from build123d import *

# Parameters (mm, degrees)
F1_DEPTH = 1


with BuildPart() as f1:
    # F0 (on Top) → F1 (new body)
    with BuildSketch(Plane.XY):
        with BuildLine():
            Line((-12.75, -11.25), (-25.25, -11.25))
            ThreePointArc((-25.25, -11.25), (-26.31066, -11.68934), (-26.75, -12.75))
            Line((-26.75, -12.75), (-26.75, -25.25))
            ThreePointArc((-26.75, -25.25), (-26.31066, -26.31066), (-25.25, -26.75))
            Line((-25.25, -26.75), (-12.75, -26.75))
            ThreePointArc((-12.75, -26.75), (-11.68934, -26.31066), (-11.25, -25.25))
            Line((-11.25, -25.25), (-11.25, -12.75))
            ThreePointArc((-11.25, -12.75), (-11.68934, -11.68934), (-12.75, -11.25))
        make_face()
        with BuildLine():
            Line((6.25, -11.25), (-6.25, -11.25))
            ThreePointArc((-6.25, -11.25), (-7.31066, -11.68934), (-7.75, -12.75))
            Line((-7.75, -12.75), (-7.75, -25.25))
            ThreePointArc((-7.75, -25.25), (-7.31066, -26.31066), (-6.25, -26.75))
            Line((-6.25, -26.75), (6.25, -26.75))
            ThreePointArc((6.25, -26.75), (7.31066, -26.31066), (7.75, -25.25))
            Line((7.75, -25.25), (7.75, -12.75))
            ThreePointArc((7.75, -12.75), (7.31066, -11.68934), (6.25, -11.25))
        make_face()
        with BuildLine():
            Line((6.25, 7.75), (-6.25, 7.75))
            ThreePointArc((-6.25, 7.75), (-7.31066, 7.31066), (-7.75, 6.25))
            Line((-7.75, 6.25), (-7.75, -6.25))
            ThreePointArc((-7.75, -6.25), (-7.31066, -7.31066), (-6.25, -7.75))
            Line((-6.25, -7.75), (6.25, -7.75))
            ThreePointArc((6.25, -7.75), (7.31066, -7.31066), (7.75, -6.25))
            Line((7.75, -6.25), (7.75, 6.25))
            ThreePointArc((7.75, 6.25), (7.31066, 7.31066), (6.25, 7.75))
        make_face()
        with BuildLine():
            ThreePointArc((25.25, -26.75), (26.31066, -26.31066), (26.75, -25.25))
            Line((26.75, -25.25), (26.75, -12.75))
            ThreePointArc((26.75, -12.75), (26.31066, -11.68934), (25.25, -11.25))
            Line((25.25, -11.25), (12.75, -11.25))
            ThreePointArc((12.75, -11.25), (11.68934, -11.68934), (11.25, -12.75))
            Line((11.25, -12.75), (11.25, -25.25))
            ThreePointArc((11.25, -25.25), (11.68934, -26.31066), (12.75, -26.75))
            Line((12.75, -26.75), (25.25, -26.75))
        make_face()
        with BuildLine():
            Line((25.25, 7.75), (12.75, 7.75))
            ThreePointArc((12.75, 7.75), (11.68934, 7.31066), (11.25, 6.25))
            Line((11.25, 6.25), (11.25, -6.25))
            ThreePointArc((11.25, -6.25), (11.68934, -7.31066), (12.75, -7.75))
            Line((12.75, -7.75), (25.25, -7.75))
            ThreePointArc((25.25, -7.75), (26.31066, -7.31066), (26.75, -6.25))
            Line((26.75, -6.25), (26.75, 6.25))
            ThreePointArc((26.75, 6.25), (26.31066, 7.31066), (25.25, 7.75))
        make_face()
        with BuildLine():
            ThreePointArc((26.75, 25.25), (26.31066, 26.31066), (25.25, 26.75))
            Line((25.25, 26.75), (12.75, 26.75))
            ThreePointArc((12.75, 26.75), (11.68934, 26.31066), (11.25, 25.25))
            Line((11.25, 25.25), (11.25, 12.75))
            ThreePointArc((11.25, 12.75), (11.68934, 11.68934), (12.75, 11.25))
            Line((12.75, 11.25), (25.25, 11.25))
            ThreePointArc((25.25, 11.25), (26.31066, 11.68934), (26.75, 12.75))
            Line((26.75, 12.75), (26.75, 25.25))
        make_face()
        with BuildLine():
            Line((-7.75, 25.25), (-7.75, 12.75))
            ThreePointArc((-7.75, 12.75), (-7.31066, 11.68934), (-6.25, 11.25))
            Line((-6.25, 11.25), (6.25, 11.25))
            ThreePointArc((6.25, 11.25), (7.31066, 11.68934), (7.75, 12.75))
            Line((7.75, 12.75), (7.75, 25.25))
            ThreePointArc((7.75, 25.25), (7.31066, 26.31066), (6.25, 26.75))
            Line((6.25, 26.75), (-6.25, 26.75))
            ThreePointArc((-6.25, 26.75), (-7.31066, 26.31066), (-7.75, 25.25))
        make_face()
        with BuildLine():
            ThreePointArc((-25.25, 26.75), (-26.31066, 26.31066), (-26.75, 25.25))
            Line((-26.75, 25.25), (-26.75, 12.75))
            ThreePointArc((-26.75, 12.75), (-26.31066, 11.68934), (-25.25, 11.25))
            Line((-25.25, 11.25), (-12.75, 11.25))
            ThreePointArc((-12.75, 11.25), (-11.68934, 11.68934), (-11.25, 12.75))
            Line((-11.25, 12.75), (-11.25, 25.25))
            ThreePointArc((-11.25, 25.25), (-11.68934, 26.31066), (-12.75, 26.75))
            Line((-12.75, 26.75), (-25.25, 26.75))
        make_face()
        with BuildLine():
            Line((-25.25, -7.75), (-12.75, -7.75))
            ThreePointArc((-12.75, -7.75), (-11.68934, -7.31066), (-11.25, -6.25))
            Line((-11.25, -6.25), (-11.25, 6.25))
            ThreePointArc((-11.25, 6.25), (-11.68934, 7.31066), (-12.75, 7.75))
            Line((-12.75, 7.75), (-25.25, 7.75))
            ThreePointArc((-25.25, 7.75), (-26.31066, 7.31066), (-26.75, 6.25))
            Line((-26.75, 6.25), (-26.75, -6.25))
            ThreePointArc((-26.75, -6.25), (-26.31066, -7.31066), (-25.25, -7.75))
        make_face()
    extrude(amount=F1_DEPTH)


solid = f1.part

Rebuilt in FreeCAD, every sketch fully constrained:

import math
import FreeCAD as App
import Part
import Sketcher

doc = App.newDocument("Part")
body = doc.addObject("PartDesign::Body", "Body")
body.AllowCompound = True

sketch1 = body.newObject("Sketcher::SketchObject", "Sketch")
sketch1.AttachmentSupport = (doc.getObject("XY_Plane"), [""])
sketch1.MapMode = "FlatFace"
sketch1.addGeometry(Part.LineSegment(App.Vector(-12.8, -11.2, 0), App.Vector(-25.2, -11.2, 0)), False)
sketch1.addGeometry(Part.ArcOfCircle(Part.Circle(App.Vector(-25.2, -12.8, 0), App.Vector(0, 0, 1), 1.5), math.radians(90), math.radians(180)), False)
sketch1.addGeometry(Part.LineSegment(App.Vector(-26.8, -12.8, 0), App.Vector(-26.8, -25.2, 0)), False)
sketch1.addGeometry(Part.ArcOfCircle(Part.Circle(App.Vector(-25.2, -25.2, 0), App.Vector(0, 0, 1), 1.5), math.radians(-180), math.radians(-90)), False)
sketch1.addGeometry(Part.LineSegment(App.Vector(-25.2, -26.8, 0), App.Vector(-12.8, -26.8, 0)), False)
sketch1.addGeometry(Part.ArcOfCircle(Part.Circle(App.Vector(-12.8, -25.2, 0), App.Vector(0, 0, 1), 1.5), math.radians(-90), math.radians(0)), False)
sketch1.addGeometry(Part.LineSegment(App.Vector(-11.2, -25.2, 0), App.Vector(-11.2, -12.8, 0)), False)
sketch1.addGeometry(Part.ArcOfCircle(Part.Circle(App.Vector(-12.8, -12.8, 0), App.Vector(0, 0, 1), 1.5), math.radians(0), math.radians(90)), False)
sketch1.addGeometry(Part.LineSegment(App.Vector(6.2, -11.2, 0), App.Vector(-6.2, -11.2, 0)), False)
sketch1.addGeometry(Part.ArcOfCircle(Part.Circle(App.Vector(-6.2, -12.8, 0), App.Vector(0, 0, 1), 1.5), math.radians(90), math.radians(180)), False)
sketch1.addGeometry(Part.LineSegment(App.Vector(-7.8, -12.8, 0), App.Vector(-7.8, -25.2, 0)), False)
sketch1.addGeometry(Part.ArcOfCircle(Part.Circle(App.Vector(-6.2, -25.2, 0), App.Vector(0, 0, 1), 1.5), math.radians(-180), math.radians(-90)), False)
sketch1.addGeometry(Part.LineSegment(App.Vector(-6.2, -26.8, 0), App.Vector(6.2, -26.8, 0)), False)
sketch1.addGeometry(Part.ArcOfCircle(Part.Circle(App.Vector(6.2, -25.2, 0), App.Vector(0, 0, 1), 1.5), math.radians(-90), math.radians(0)), False)
sketch1.addGeometry(Part.LineSegment(App.Vector(7.8, -25.2, 0), App.Vector(7.8, -12.8, 0)), False)
sketch1.addGeometry(Part.ArcOfCircle(Part.Circle(App.Vector(6.2, -12.8, 0), App.Vector(0, 0, 1), 1.5), math.radians(0), math.radians(90)), False)
sketch1.addGeometry(Part.LineSegment(App.Vector(6.2, 7.8, 0), App.Vector(-6.2, 7.8, 0)), False)
sketch1.addGeometry(Part.ArcOfCircle(Part.Circle(App.Vector(-6.2, 6.2, 0), App.Vector(0, 0, 1), 1.5), math.radians(90), math.radians(180)), False)
sketch1.addGeometry(Part.LineSegment(App.Vector(-7.8, 6.2, 0), App.Vector(-7.8, -6.2, 0)), False)
sketch1.addGeometry(Part.ArcOfCircle(Part.Circle(App.Vector(-6.2, -6.2, 0), App.Vector(0, 0, 1), 1.5), math.radians(-180), math.radians(-90)), False)
sketch1.addGeometry(Part.LineSegment(App.Vector(-6.2, -7.8, 0), App.Vector(6.2, -7.8, 0)), False)
sketch1.addGeometry(Part.ArcOfCircle(Part.Circle(App.Vector(6.2, -6.2, 0), App.Vector(0, 0, 1), 1.5), math.radians(-90), math.radians(0)), False)
sketch1.addGeometry(Part.LineSegment(App.Vector(7.8, -6.2, 0), App.Vector(7.8, 6.2, 0)), False)
sketch1.addGeometry(Part.ArcOfCircle(Part.Circle(App.Vector(6.2, 6.2, 0), App.Vector(0, 0, 1), 1.5), math.radians(0), math.radians(90)), False)
sketch1.addGeometry(Part.ArcOfCircle(Part.Circle(App.Vector(25.2, -25.2, 0), App.Vector(0, 0, 1), 1.5), math.radians(-90), math.radians(0)), False)
sketch1.addGeometry(Part.LineSegment(App.Vector(26.8, -25.2, 0), App.Vector(26.8, -12.8, 0)), False)
sketch1.addGeometry(Part.ArcOfCircle(Part.Circle(App.Vector(25.2, -12.8, 0), App.Vector(0, 0, 1), 1.5), math.radians(0), math.radians(90)), False)
sketch1.addGeometry(Part.LineSegment(App.Vector(25.2, -11.2, 0), App.Vector(12.8, -11.2, 0)), False)
sketch1.addGeometry(Part.ArcOfCircle(Part.Circle(App.Vector(12.8, -12.8, 0), App.Vector(0, 0, 1), 1.5), math.radians(90), math.radians(180)), False)
sketch1.addGeometry(Part.LineSegment(App.Vector(11.2, -12.8, 0), App.Vector(11.2, -25.2, 0)), False)
sketch1.addGeometry(Part.ArcOfCircle(Part.Circle(App.Vector(12.8, -25.2, 0), App.Vector(0, 0, 1), 1.5), math.radians(-180), math.radians(-90)), False)
sketch1.addGeometry(Part.LineSegment(App.Vector(12.8, -26.8, 0), App.Vector(25.2, -26.8, 0)), False)
sketch1.addGeometry(Part.LineSegment(App.Vector(25.2, 7.8, 0), App.Vector(12.8, 7.8, 0)), False)
sketch1.addGeometry(Part.ArcOfCircle(Part.Circle(App.Vector(12.8, 6.2, 0), App.Vector(0, 0, 1), 1.5), math.radians(90), math.radians(180)), False)
sketch1.addGeometry(Part.LineSegment(App.Vector(11.2, 6.2, 0), App.Vector(11.2, -6.2, 0)), False)
sketch1.addGeometry(Part.ArcOfCircle(Part.Circle(App.Vector(12.8, -6.2, 0), App.Vector(0, 0, 1), 1.5), math.radians(-180), math.radians(-90)), False)
sketch1.addGeometry(Part.LineSegment(App.Vector(12.8, -7.8, 0), App.Vector(25.2, -7.8, 0)), False)
sketch1.addGeometry(Part.ArcOfCircle(Part.Circle(App.Vector(25.2, -6.2, 0), App.Vector(0, 0, 1), 1.5), math.radians(-90), math.radians(0)), False)
sketch1.addGeometry(Part.LineSegment(App.Vector(26.8, -6.2, 0), App.Vector(26.8, 6.2, 0)), False)
sketch1.addGeometry(Part.ArcOfCircle(Part.Circle(App.Vector(25.2, 6.2, 0), App.Vector(0, 0, 1), 1.5), math.radians(0), math.radians(90)), False)
sketch1.addGeometry(Part.ArcOfCircle(Part.Circle(App.Vector(25.2, 25.2, 0), App.Vector(0, 0, 1), 1.5), math.radians(0), math.radians(90)), False)
sketch1.addGeometry(Part.LineSegment(App.Vector(25.2, 26.8, 0), App.Vector(12.8, 26.8, 0)), False)
sketch1.addGeometry(Part.ArcOfCircle(Part.Circle(App.Vector(12.8, 25.2, 0), App.Vector(0, 0, 1), 1.5), math.radians(90), math.radians(180)), False)
sketch1.addGeometry(Part.LineSegment(App.Vector(11.2, 25.2, 0), App.Vector(11.2, 12.8, 0)), False)
sketch1.addGeometry(Part.ArcOfCircle(Part.Circle(App.Vector(12.8, 12.8, 0), App.Vector(0, 0, 1), 1.5), math.radians(-180), math.radians(-90)), False)
sketch1.addGeometry(Part.LineSegment(App.Vector(12.8, 11.2, 0), App.Vector(25.2, 11.2, 0)), False)
sketch1.addGeometry(Part.ArcOfCircle(Part.Circle(App.Vector(25.2, 12.8, 0), App.Vector(0, 0, 1), 1.5), math.radians(-90), math.radians(0)), False)
sketch1.addGeometry(Part.LineSegment(App.Vector(26.8, 12.8, 0), App.Vector(26.8, 25.2, 0)), False)
sketch1.addGeometry(Part.LineSegment(App.Vector(-7.8, 25.2, 0), App.Vector(-7.8, 12.8, 0)), False)
sketch1.addGeometry(Part.ArcOfCircle(Part.Circle(App.Vector(-6.2, 12.8, 0), App.Vector(0, 0, 1), 1.5), math.radians(-180), math.radians(-90)), False)
sketch1.addGeometry(Part.LineSegment(App.Vector(-6.2, 11.2, 0), App.Vector(6.2, 11.2, 0)), False)
sketch1.addGeometry(Part.ArcOfCircle(Part.Circle(App.Vector(6.2, 12.8, 0), App.Vector(0, 0, 1), 1.5), math.radians(-90), math.radians(0)), False)
sketch1.addGeometry(Part.LineSegment(App.Vector(7.8, 12.8, 0), App.Vector(7.8, 25.2, 0)), False)
sketch1.addGeometry(Part.ArcOfCircle(Part.Circle(App.Vector(6.2, 25.2, 0), App.Vector(0, 0, 1), 1.5), math.radians(0), math.radians(90)), False)
sketch1.addGeometry(Part.LineSegment(App.Vector(6.2, 26.8, 0), App.Vector(-6.2, 26.8, 0)), False)
sketch1.addGeometry(Part.ArcOfCircle(Part.Circle(App.Vector(-6.2, 25.2, 0), App.Vector(0, 0, 1), 1.5), math.radians(90), math.radians(180)), False)
sketch1.addGeometry(Part.ArcOfCircle(Part.Circle(App.Vector(-25.2, 25.2, 0), App.Vector(0, 0, 1), 1.5), math.radians(90), math.radians(180)), False)
sketch1.addGeometry(Part.LineSegment(App.Vector(-26.8, 25.2, 0), App.Vector(-26.8, 12.8, 0)), False)
sketch1.addGeometry(Part.ArcOfCircle(Part.Circle(App.Vector(-25.2, 12.8, 0), App.Vector(0, 0, 1), 1.5), math.radians(-180), math.radians(-90)), False)
sketch1.addGeometry(Part.LineSegment(App.Vector(-25.2, 11.2, 0), App.Vector(-12.8, 11.2, 0)), False)
sketch1.addGeometry(Part.ArcOfCircle(Part.Circle(App.Vector(-12.8, 12.8, 0), App.Vector(0, 0, 1), 1.5), math.radians(-90), math.radians(0)), False)
sketch1.addGeometry(Part.LineSegment(App.Vector(-11.2, 12.8, 0), App.Vector(-11.2, 25.2, 0)), False)
sketch1.addGeometry(Part.ArcOfCircle(Part.Circle(App.Vector(-12.8, 25.2, 0), App.Vector(0, 0, 1), 1.5), math.radians(0), math.radians(90)), False)
sketch1.addGeometry(Part.LineSegment(App.Vector(-12.8, 26.8, 0), App.Vector(-25.2, 26.8, 0)), False)
sketch1.addGeometry(Part.LineSegment(App.Vector(-25.2, -7.8, 0), App.Vector(-12.8, -7.8, 0)), False)
sketch1.addGeometry(Part.ArcOfCircle(Part.Circle(App.Vector(-12.8, -6.2, 0), App.Vector(0, 0, 1), 1.5), math.radians(-90), math.radians(0)), False)
sketch1.addGeometry(Part.LineSegment(App.Vector(-11.2, -6.2, 0), App.Vector(-11.2, 6.2, 0)), False)
sketch1.addGeometry(Part.ArcOfCircle(Part.Circle(App.Vector(-12.8, 6.2, 0), App.Vector(0, 0, 1), 1.5), math.radians(0), math.radians(90)), False)
sketch1.addGeometry(Part.LineSegment(App.Vector(-12.8, 7.8, 0), App.Vector(-25.2, 7.8, 0)), False)
sketch1.addGeometry(Part.ArcOfCircle(Part.Circle(App.Vector(-25.2, 6.2, 0), App.Vector(0, 0, 1), 1.5), math.radians(90), math.radians(180)), False)
sketch1.addGeometry(Part.LineSegment(App.Vector(-26.8, 6.2, 0), App.Vector(-26.8, -6.2, 0)), False)
sketch1.addGeometry(Part.ArcOfCircle(Part.Circle(App.Vector(-25.2, -6.2, 0), App.Vector(0, 0, 1), 1.5), math.radians(-180), math.radians(-90)), False)
sketch1.addConstraint(Sketcher.Constraint("Tangent", 0, 2, 1, 1))
sketch1.addConstraint(Sketcher.Constraint("Tangent", 1, 2, 2, 1))
sketch1.addConstraint(Sketcher.Constraint("Tangent", 2, 2, 3, 1))
sketch1.addConstraint(Sketcher.Constraint("Tangent", 3, 2, 4, 1))
sketch1.addConstraint(Sketcher.Constraint("Tangent", 4, 2, 5, 1))
sketch1.addConstraint(Sketcher.Constraint("Tangent", 5, 2, 6, 1))
sketch1.addConstraint(Sketcher.Constraint("Tangent", 6, 2, 7, 1))
sketch1.addConstraint(Sketcher.Constraint("Tangent", 7, 2, 0, 1))
sketch1.addConstraint(Sketcher.Constraint("Tangent", 8, 2, 9, 1))
sketch1.addConstraint(Sketcher.Constraint("Tangent", 9, 2, 10, 1))
sketch1.addConstraint(Sketcher.Constraint("Tangent", 10, 2, 11, 1))
sketch1.addConstraint(Sketcher.Constraint("Tangent", 11, 2, 12, 1))
sketch1.addConstraint(Sketcher.Constraint("Tangent", 12, 2, 13, 1))
sketch1.addConstraint(Sketcher.Constraint("Tangent", 13, 2, 14, 1))
sketch1.addConstraint(Sketcher.Constraint("Tangent", 14, 2, 15, 1))
sketch1.addConstraint(Sketcher.Constraint("Tangent", 15, 2, 8, 1))
sketch1.addConstraint(Sketcher.Constraint("Tangent", 16, 2, 17, 1))
sketch1.addConstraint(Sketcher.Constraint("Tangent", 17, 2, 18, 1))
sketch1.addConstraint(Sketcher.Constraint("Tangent", 18, 2, 19, 1))
sketch1.addConstraint(Sketcher.Constraint("Tangent", 19, 2, 20, 1))
sketch1.addConstraint(Sketcher.Constraint("Tangent", 20, 2, 21, 1))
sketch1.addConstraint(Sketcher.Constraint("Tangent", 21, 2, 22, 1))
sketch1.addConstraint(Sketcher.Constraint("Tangent", 22, 2, 23, 1))
sketch1.addConstraint(Sketcher.Constraint("Tangent", 23, 2, 16, 1))
sketch1.addConstraint(Sketcher.Constraint("Tangent", 24, 2, 25, 1))
sketch1.addConstraint(Sketcher.Constraint("Tangent", 25, 2, 26, 1))
sketch1.addConstraint(Sketcher.Constraint("Tangent", 26, 2, 27, 1))
sketch1.addConstraint(Sketcher.Constraint("Tangent", 27, 2, 28, 1))
sketch1.addConstraint(Sketcher.Constraint("Tangent", 28, 2, 29, 1))
sketch1.addConstraint(Sketcher.Constraint("Tangent", 29, 2, 30, 1))
sketch1.addConstraint(Sketcher.Constraint("Tangent", 30, 2, 31, 1))
sketch1.addConstraint(Sketcher.Constraint("Tangent", 31, 2, 24, 1))
sketch1.addConstraint(Sketcher.Constraint("Tangent", 32, 2, 33, 1))
sketch1.addConstraint(Sketcher.Constraint("Tangent", 33, 2, 34, 1))
sketch1.addConstraint(Sketcher.Constraint("Tangent", 34, 2, 35, 1))
sketch1.addConstraint(Sketcher.Constraint("Tangent", 35, 2, 36, 1))
sketch1.addConstraint(Sketcher.Constraint("Tangent", 36, 2, 37, 1))
sketch1.addConstraint(Sketcher.Constraint("Tangent", 37, 2, 38, 1))
sketch1.addConstraint(Sketcher.Constraint("Tangent", 38, 2, 39, 1))
sketch1.addConstraint(Sketcher.Constraint("Tangent", 39, 2, 32, 1))
sketch1.addConstraint(Sketcher.Constraint("Tangent", 40, 2, 41, 1))
sketch1.addConstraint(Sketcher.Constraint("Tangent", 41, 2, 42, 1))
sketch1.addConstraint(Sketcher.Constraint("Tangent", 42, 2, 43, 1))
sketch1.addConstraint(Sketcher.Constraint("Tangent", 43, 2, 44, 1))
sketch1.addConstraint(Sketcher.Constraint("Tangent", 44, 2, 45, 1))
sketch1.addConstraint(Sketcher.Constraint("Tangent", 45, 2, 46, 1))
sketch1.addConstraint(Sketcher.Constraint("Tangent", 46, 2, 47, 1))
sketch1.addConstraint(Sketcher.Constraint("Tangent", 47, 2, 40, 1))
sketch1.addConstraint(Sketcher.Constraint("Tangent", 48, 2, 49, 1))
sketch1.addConstraint(Sketcher.Constraint("Tangent", 49, 2, 50, 1))
sketch1.addConstraint(Sketcher.Constraint("Tangent", 50, 2, 51, 1))
sketch1.addConstraint(Sketcher.Constraint("Tangent", 51, 2, 52, 1))
sketch1.addConstraint(Sketcher.Constraint("Tangent", 52, 2, 53, 1))
sketch1.addConstraint(Sketcher.Constraint("Tangent", 53, 2, 54, 1))
sketch1.addConstraint(Sketcher.Constraint("Tangent", 54, 2, 55, 1))
sketch1.addConstraint(Sketcher.Constraint("Tangent", 55, 2, 48, 1))
sketch1.addConstraint(Sketcher.Constraint("Tangent", 56, 2, 57, 1))
sketch1.addConstraint(Sketcher.Constraint("Tangent", 57, 2, 58, 1))
sketch1.addConstraint(Sketcher.Constraint("Tangent", 58, 2, 59, 1))
sketch1.addConstraint(Sketcher.Constraint("Tangent", 59, 2, 60, 1))
sketch1.addConstraint(Sketcher.Constraint("Tangent", 60, 2, 61, 1))
sketch1.addConstraint(Sketcher.Constraint("Tangent", 61, 2, 62, 1))
sketch1.addConstraint(Sketcher.Constraint("Tangent", 62, 2, 63, 1))
sketch1.addConstraint(Sketcher.Constraint("Tangent", 63, 2, 56, 1))
sketch1.addConstraint(Sketcher.Constraint("Tangent", 64, 2, 65, 1))
sketch1.addConstraint(Sketcher.Constraint("Tangent", 65, 2, 66, 1))
sketch1.addConstraint(Sketcher.Constraint("Tangent", 66, 2, 67, 1))
sketch1.addConstraint(Sketcher.Constraint("Tangent", 67, 2, 68, 1))
sketch1.addConstraint(Sketcher.Constraint("Tangent", 68, 2, 69, 1))
sketch1.addConstraint(Sketcher.Constraint("Tangent", 69, 2, 70, 1))
sketch1.addConstraint(Sketcher.Constraint("Tangent", 70, 2, 71, 1))
sketch1.addConstraint(Sketcher.Constraint("Tangent", 71, 2, 64, 1))
sketch1.addConstraint(Sketcher.Constraint("Horizontal", 0))
sketch1.addConstraint(Sketcher.Constraint("Vertical", 2))
sketch1.addConstraint(Sketcher.Constraint("Horizontal", 4))
sketch1.addConstraint(Sketcher.Constraint("Vertical", 6))
sketch1.addConstraint(Sketcher.Constraint("Horizontal", 8))
sketch1.addConstraint(Sketcher.Constraint("Vertical", 10))
sketch1.addConstraint(Sketcher.Constraint("Horizontal", 12))
sketch1.addConstraint(Sketcher.Constraint("Vertical", 14))
sketch1.addConstraint(Sketcher.Constraint("Horizontal", 16))
sketch1.addConstraint(Sketcher.Constraint("Vertical", 18))
sketch1.addConstraint(Sketcher.Constraint("Horizontal", 20))
sketch1.addConstraint(Sketcher.Constraint("Vertical", 22))
sketch1.addConstraint(Sketcher.Constraint("Vertical", 25))
sketch1.addConstraint(Sketcher.Constraint("Horizontal", 27))
sketch1.addConstraint(Sketcher.Constraint("Vertical", 29))
sketch1.addConstraint(Sketcher.Constraint("Horizontal", 31))
sketch1.addConstraint(Sketcher.Constraint("Horizontal", 32))
sketch1.addConstraint(Sketcher.Constraint("Vertical", 34))
sketch1.addConstraint(Sketcher.Constraint("Horizontal", 36))
sketch1.addConstraint(Sketcher.Constraint("Vertical", 38))
sketch1.addConstraint(Sketcher.Constraint("Horizontal", 41))
sketch1.addConstraint(Sketcher.Constraint("Vertical", 43))
sketch1.addConstraint(Sketcher.Constraint("Horizontal", 45))
sketch1.addConstraint(Sketcher.Constraint("Vertical", 47))
sketch1.addConstraint(Sketcher.Constraint("Vertical", 48))
sketch1.addConstraint(Sketcher.Constraint("Horizontal", 50))
sketch1.addConstraint(Sketcher.Constraint("Vertical", 52))
sketch1.addConstraint(Sketcher.Constraint("Horizontal", 54))
sketch1.addConstraint(Sketcher.Constraint("Vertical", 57))
sketch1.addConstraint(Sketcher.Constraint("Horizontal", 59))
sketch1.addConstraint(Sketcher.Constraint("Vertical", 61))
sketch1.addConstraint(Sketcher.Constraint("Horizontal", 63))
sketch1.addConstraint(Sketcher.Constraint("Horizontal", 64))
sketch1.addConstraint(Sketcher.Constraint("Vertical", 66))
sketch1.addConstraint(Sketcher.Constraint("Horizontal", 68))
sketch1.addConstraint(Sketcher.Constraint("Vertical", 70))
sketch1.addConstraint(Sketcher.Constraint("Equal", 1, 3))
sketch1.addConstraint(Sketcher.Constraint("Equal", 3, 5))
sketch1.addConstraint(Sketcher.Constraint("Equal", 5, 7))
sketch1.addConstraint(Sketcher.Constraint("Equal", 7, 9))
sketch1.addConstraint(Sketcher.Constraint("Equal", 9, 11))
sketch1.addConstraint(Sketcher.Constraint("Equal", 11, 13))
sketch1.addConstraint(Sketcher.Constraint("Equal", 13, 15))
sketch1.addConstraint(Sketcher.Constraint("Equal", 15, 17))
sketch1.addConstraint(Sketcher.Constraint("Equal", 17, 19))
sketch1.addConstraint(Sketcher.Constraint("Equal", 19, 21))
sketch1.addConstraint(Sketcher.Constraint("Equal", 21, 23))
sketch1.addConstraint(Sketcher.Constraint("Equal", 23, 24))
sketch1.addConstraint(Sketcher.Constraint("Equal", 24, 26))
sketch1.addConstraint(Sketcher.Constraint("Equal", 26, 28))
sketch1.addConstraint(Sketcher.Constraint("Equal", 28, 30))
sketch1.addConstraint(Sketcher.Constraint("Equal", 30, 33))
sketch1.addConstraint(Sketcher.Constraint("Equal", 33, 35))
sketch1.addConstraint(Sketcher.Constraint("Equal", 35, 37))
sketch1.addConstraint(Sketcher.Constraint("Equal", 37, 39))
sketch1.addConstraint(Sketcher.Constraint("Equal", 39, 40))
sketch1.addConstraint(Sketcher.Constraint("Equal", 40, 42))
sketch1.addConstraint(Sketcher.Constraint("Equal", 42, 44))
sketch1.addConstraint(Sketcher.Constraint("Equal", 44, 46))
sketch1.addConstraint(Sketcher.Constraint("Equal", 46, 49))
sketch1.addConstraint(Sketcher.Constraint("Equal", 49, 51))
sketch1.addConstraint(Sketcher.Constraint("Equal", 51, 53))
sketch1.addConstraint(Sketcher.Constraint("Equal", 53, 55))
sketch1.addConstraint(Sketcher.Constraint("Equal", 55, 56))
sketch1.addConstraint(Sketcher.Constraint("Equal", 56, 58))
sketch1.addConstraint(Sketcher.Constraint("Equal", 58, 60))
sketch1.addConstraint(Sketcher.Constraint("Equal", 60, 62))
sketch1.addConstraint(Sketcher.Constraint("Equal", 62, 65))
sketch1.addConstraint(Sketcher.Constraint("Equal", 65, 67))
sketch1.addConstraint(Sketcher.Constraint("Equal", 67, 69))
sketch1.addConstraint(Sketcher.Constraint("Equal", 69, 71))
sketch1.addConstraint(Sketcher.Constraint("Symmetric", 17, 3, 21, 3, -1, 1))
sketch1.addConstraint(Sketcher.Constraint("Symmetric", 3, 3, 40, 3, -1, 1))
sketch1.addConstraint(Sketcher.Constraint("Symmetric", 7, 3, 44, 3, -1, 1))
sketch1.addConstraint(Sketcher.Constraint("Symmetric", 15, 3, 49, 3, -1, 1))
sketch1.addConstraint(Sketcher.Constraint("Symmetric", 11, 3, 53, 3, -1, 1))
sketch1.addConstraint(Sketcher.Constraint("Symmetric", 24, 3, 56, 3, -1, 1))
sketch1.addConstraint(Sketcher.Constraint("Symmetric", 28, 3, 60, 3, -1, 1))
sketch1.addConstraint(Sketcher.Constraint("Symmetric", 33, 3, 65, 3, -1, 1))
sketch1.addConstraint(Sketcher.Constraint("Symmetric", 37, 3, 69, 3, -1, 1))
sketch1.addConstraint(Sketcher.Constraint("Symmetric", 3, 3, 24, 3, -2))
sketch1.addConstraint(Sketcher.Constraint("Symmetric", 7, 3, 28, 3, -2))
sketch1.addConstraint(Sketcher.Constraint("Horizontal", 7, 3, 9, 3))
sketch1.addConstraint(Sketcher.Constraint("Horizontal", 5, 3, 11, 3))
sketch1.addConstraint(Sketcher.Constraint("Horizontal", 23, 3, 33, 3))
sketch1.addConstraint(Sketcher.Constraint("Horizontal", 21, 3, 35, 3))
sketch1.addConstraint(Sketcher.Constraint("Vertical", 11, 3, 17, 3))
sketch1.addConstraint(Sketcher.Constraint("Vertical", 15, 3, 21, 3))
sketch1.addConstraint(Sketcher.Constraint("Vertical", 30, 3, 33, 3))
sketch1.addConstraint(Sketcher.Constraint("Vertical", 26, 3, 37, 3))
sketch1.addConstraint(Sketcher.Constraint("Equal", 4, 8))
sketch1.addConstraint(Sketcher.Constraint("Equal", 68, 2))
sketch1.addConstraint(Sketcher.Constraint("Equal", 14, 18))
sketch1.addConstraint(Sketcher.Constraint("Radius", 1, 1.500001))
sketch1.addConstraint(Sketcher.Constraint("DistanceX", 0, 2, 0, 1, 12.5))
sketch1.addConstraint(Sketcher.Constraint("DistanceX", 1, 3, -1, 1, 25.249999))
sketch1.addConstraint(Sketcher.Constraint("DistanceY", 1, 3, -1, 1, 12.750001))
pad1 = body.newObject("PartDesign::Pad", "Pad")
pad1.Profile = sketch1
pad1.Length = 1

doc.recompute()
